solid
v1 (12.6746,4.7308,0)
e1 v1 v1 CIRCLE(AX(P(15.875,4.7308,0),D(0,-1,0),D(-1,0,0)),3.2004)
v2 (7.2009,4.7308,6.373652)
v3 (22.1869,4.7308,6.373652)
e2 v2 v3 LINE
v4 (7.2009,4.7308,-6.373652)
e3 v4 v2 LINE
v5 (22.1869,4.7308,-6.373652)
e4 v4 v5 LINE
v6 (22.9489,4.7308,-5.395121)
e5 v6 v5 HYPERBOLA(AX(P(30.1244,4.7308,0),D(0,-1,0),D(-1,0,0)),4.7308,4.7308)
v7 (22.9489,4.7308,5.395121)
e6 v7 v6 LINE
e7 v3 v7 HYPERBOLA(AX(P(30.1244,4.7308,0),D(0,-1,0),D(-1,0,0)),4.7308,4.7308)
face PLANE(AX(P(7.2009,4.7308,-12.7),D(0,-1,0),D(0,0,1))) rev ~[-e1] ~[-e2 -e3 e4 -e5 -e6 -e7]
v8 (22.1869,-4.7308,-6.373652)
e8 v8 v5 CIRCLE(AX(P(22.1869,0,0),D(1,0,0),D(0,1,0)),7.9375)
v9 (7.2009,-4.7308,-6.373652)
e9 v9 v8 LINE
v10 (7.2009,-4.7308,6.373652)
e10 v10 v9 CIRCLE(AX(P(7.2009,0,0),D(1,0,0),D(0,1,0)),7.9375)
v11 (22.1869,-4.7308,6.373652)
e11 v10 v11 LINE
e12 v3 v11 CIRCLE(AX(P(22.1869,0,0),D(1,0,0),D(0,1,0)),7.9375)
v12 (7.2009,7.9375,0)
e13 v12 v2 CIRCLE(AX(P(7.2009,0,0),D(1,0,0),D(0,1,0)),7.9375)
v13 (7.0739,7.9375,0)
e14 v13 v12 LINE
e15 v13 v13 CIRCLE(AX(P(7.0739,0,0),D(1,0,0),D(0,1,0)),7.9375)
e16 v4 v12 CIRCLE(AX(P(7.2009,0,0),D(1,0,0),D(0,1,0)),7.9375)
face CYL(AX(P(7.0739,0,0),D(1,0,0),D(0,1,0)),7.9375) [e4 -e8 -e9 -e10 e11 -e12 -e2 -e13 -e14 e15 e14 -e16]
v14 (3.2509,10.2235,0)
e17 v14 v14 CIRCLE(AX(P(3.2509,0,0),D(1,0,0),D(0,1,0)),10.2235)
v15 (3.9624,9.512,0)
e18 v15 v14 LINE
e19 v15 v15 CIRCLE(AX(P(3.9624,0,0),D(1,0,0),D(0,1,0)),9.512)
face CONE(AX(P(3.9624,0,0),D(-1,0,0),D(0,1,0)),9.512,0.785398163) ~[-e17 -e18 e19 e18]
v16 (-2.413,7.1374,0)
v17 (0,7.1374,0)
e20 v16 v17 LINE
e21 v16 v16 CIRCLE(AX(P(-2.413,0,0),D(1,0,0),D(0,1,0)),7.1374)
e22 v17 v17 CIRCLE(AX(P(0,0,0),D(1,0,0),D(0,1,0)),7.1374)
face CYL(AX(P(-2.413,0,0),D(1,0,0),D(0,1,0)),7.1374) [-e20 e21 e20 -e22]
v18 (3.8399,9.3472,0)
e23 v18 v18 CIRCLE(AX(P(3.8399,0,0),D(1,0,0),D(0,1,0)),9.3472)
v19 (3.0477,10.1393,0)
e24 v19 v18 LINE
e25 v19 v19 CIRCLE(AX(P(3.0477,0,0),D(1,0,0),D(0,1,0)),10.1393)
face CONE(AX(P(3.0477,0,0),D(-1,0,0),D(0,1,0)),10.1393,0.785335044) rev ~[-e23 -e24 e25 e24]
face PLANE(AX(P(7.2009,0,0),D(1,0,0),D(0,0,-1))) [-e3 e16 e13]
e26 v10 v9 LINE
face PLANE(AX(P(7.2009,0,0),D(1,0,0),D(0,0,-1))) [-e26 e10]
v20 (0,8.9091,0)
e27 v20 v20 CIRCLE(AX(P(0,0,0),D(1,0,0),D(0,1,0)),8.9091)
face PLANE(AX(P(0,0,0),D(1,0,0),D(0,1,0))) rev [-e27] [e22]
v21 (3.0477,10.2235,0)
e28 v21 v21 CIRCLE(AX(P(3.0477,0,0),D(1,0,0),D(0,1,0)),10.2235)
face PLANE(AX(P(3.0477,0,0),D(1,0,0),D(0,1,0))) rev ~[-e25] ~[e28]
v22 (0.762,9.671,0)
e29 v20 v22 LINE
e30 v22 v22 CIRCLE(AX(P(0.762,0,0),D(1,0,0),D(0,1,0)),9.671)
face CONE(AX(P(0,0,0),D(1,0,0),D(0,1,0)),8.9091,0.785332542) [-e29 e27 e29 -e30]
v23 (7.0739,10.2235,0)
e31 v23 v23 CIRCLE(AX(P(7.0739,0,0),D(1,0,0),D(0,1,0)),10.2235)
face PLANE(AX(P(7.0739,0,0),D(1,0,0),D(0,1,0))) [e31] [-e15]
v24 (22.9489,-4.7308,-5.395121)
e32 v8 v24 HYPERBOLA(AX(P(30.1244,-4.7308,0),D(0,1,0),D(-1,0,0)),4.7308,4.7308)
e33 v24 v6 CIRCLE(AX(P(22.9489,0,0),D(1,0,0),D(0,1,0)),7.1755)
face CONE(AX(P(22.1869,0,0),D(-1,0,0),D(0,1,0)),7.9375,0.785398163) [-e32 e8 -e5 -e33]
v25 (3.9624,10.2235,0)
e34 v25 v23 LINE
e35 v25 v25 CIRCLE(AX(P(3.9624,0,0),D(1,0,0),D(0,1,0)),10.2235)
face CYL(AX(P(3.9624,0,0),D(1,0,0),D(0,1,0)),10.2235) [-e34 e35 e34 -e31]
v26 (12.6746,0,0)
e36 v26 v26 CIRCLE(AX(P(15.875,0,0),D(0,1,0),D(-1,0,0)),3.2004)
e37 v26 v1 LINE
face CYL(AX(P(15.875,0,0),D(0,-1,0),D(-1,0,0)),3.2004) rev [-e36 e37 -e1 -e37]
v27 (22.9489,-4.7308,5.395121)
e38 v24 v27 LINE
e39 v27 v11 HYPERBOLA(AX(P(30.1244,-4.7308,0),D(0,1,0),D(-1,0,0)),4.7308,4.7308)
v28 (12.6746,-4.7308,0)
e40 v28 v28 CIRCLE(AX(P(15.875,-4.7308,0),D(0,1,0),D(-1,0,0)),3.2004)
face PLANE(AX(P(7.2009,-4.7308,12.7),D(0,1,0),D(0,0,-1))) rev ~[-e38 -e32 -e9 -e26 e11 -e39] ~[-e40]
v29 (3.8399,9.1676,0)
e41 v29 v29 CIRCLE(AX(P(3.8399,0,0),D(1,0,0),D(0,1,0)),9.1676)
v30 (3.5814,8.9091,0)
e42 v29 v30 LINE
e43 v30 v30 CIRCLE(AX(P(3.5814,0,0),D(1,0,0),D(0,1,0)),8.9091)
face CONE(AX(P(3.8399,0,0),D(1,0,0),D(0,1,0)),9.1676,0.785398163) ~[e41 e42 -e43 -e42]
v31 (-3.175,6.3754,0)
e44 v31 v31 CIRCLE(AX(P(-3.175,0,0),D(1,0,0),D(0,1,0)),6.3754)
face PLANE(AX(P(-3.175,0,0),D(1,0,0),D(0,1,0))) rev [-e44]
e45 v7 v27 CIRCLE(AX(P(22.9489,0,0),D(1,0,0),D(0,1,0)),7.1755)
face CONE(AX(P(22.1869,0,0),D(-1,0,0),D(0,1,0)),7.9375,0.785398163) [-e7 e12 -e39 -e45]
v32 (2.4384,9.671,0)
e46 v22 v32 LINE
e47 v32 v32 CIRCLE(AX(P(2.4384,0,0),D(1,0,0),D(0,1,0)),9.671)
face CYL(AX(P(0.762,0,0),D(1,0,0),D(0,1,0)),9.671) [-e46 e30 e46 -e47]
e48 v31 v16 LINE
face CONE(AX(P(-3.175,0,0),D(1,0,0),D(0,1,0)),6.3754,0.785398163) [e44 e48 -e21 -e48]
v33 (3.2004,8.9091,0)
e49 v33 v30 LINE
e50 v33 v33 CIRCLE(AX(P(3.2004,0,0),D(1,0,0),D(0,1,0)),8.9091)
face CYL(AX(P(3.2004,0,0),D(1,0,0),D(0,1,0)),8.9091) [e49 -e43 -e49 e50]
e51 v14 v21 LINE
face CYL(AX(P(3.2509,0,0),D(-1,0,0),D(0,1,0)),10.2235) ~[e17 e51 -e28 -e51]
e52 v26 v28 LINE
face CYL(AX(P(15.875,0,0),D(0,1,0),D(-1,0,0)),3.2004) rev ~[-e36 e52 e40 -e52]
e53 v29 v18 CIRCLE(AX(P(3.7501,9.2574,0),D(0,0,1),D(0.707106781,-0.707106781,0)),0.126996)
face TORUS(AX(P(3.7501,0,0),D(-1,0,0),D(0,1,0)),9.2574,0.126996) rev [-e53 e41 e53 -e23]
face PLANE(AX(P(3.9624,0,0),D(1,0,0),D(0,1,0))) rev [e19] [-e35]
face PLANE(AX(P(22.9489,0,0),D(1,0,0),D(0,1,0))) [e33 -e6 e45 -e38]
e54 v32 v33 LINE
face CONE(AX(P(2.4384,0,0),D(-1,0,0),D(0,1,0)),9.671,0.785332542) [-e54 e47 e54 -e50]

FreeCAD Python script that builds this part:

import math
import FreeCAD as App
import Part
import Sketcher

V = App.Vector
Q = App.Units.Quantity

doc = App.newDocument("Part")
body = doc.addObject("PartDesign::Body", "Body")

# Sketch on XY plane
sketch1 = doc.addObject("Sketcher::SketchObject", "Sketch")
body.addObject(sketch1)
sketch1.AttachmentSupport = (doc.XY_Plane, [""])
sketch1.MapMode = "FlatFace"
sketch1.addGeometry([
    Part.LineSegment(V(0, 0, 0), V(7.1, 0, 0)),  # 0
    Part.LineSegment(V(7.1, 0, 0), V(7.1, 10.2, 0)),  # 1
    Part.LineSegment(V(7.1, 10.2, 0), V(4, 10.2, 0)),  # 2
    Part.LineSegment(V(4, 10.2, 0), V(4, 8.9, 0)),  # 3
    Part.LineSegment(V(4, 8.9, 0), V(3.2, 8.9, 0)),  # 4
    Part.LineSegment(V(3.2, 8.9, 0), V(2.4, 9.7, 0)),  # 5
    Part.LineSegment(V(2.4, 9.7, 0), V(0.8, 9.7, 0)),  # 6
    Part.LineSegment(V(0.8, 9.7, 0), V(0, 8.9, 0)),  # 7
    Part.LineSegment(V(0, 8.9, 0), V(0, 0, 0)),  # 8
], False)
sketch1.addConstraint([
    Sketcher.Constraint("Coincident", 0, 2, 1, 1),
    Sketcher.Constraint("Coincident", 1, 2, 2, 1),
    Sketcher.Constraint("Coincident", 2, 2, 3, 1),
    Sketcher.Constraint("Coincident", 3, 2, 4, 1),
    Sketcher.Constraint("Coincident", 4, 2, 5, 1),
    Sketcher.Constraint("Coincident", 5, 2, 6, 1),
    Sketcher.Constraint("Coincident", 6, 2, 7, 1),
    Sketcher.Constraint("Coincident", 7, 2, 8, 1),
    Sketcher.Constraint("Coincident", 8, 2, 0, 1),
    Sketcher.Constraint("Horizontal", 0),
    Sketcher.Constraint("Vertical", 1),
    Sketcher.Constraint("Horizontal", 2),
    Sketcher.Constraint("Vertical", 3),
    Sketcher.Constraint("Horizontal", 4),
    Sketcher.Constraint("Horizontal", 6),
    Sketcher.Constraint("Vertical", 8),
    Sketcher.Constraint("Coincident", 8, 2, -1, 1),
    Sketcher.Constraint("Perpendicular", 5, 7),
    Sketcher.Constraint("Horizontal", 4, 2, 7, 2),
    Sketcher.Constraint("Equal", 5, 7),
    Sketcher.Constraint("DistanceX", 4, 2, 4, 1, Q("0.03 in")),
    Sketcher.Constraint("DistanceX", 6, 2, 6, 1, Q("0.066 in")),
    Sketcher.Constraint("DistanceX", -1, 1, 6, 2, Q("0.03 in")),
    Sketcher.Constraint("DistanceX", 0, 1, 0, 2, Q("0.2785 in")),
    Sketcher.Constraint("DistanceY", 1, 1, 1, 2, Q("0.4025 in")),
    Sketcher.Constraint("DistanceY", 3, 2, 3, 1, Q("1.3144 mm")),
])
revolution = doc.addObject("PartDesign::Revolution", "Revolution")
body.addObject(revolution)
revolution.Profile = sketch1
revolution.ReferenceAxis = (sketch1, ["H_Axis"])
revolution.Angle = 360

# Sketch on XY plane
sketch2 = doc.addObject("Sketcher::SketchObject", "Sketch001")
body.addObject(sketch2)
sketch2.AttachmentSupport = (doc.XY_Plane, [""])
sketch2.MapMode = "FlatFace"
sketch2.addGeometry([
    Part.LineSegment(V(3.25, 10.22, 0), V(3.05, 10.22, 0)),  # 0
    Part.LineSegment(V(3.05, 10.22, 0), V(3.05, 10.14, 0)),  # 1
    Part.LineSegment(V(3.05, 10.14, 0), V(3.84, 9.35, 0)),  # 2
    Part.ArcOfCircle(Part.Circle(V(3.75, 9.26, 0), V(0, 0, 1), 0.13), math.radians(-45), math.radians(45)),  # 3
    Part.LineSegment(V(3.84, 9.17, 0), V(3.58, 8.91, 0)),  # 4
    Part.LineSegment(V(3.58, 8.91, 0), V(3.2, 8.91, 0)),  # 5
    Part.LineSegment(V(3.2, 8.91, 0), V(3.2, 8.65, 0)),  # 6
    Part.LineSegment(V(3.2, 8.65, 0), V(3.96, 8.65, 0)),  # 7
    Part.LineSegment(V(3.96, 8.65, 0), V(3.96, 9.51, 0)),  # 8
    Part.LineSegment(V(3.96, 9.51, 0), V(3.25, 10.22, 0)),  # 9
], False)
sketch2.addConstraint([
    Sketcher.Constraint("Coincident", 0, 2, 1, 1),
    Sketcher.Constraint("Coincident", 1, 2, 2, 1),
    Sketcher.Constraint("Tangent", 2, 2, 3, 2),
    Sketcher.Constraint("Tangent", 3, 1, 4, 1),
    Sketcher.Constraint("Coincident", 4, 2, 5, 1),
    Sketcher.Constraint("Coincident", 5, 2, 6, 1),
    Sketcher.Constraint("Coincident", 6, 2, 7, 1),
    Sketcher.Constraint("Coincident", 7, 2, 8, 1),
    Sketcher.Constraint("Coincident", 8, 2, 9, 1),
    Sketcher.Constraint("Coincident", 9, 2, 0, 1),
    Sketcher.Constraint("Horizontal", 0),
    Sketcher.Constraint("Vertical", 1),
    Sketcher.Constraint("Horizontal", 5),
    Sketcher.Constraint("Vertical", 6),
    Sketcher.Constraint("Horizontal", 7),
    Sketcher.Constraint("Vertical", 8),
    Sketcher.Constraint("Perpendicular", 2, 4),
    Sketcher.Constraint("Perpendicular", 4, 9),
    Sketcher.Constraint("Vertical", 2, 2, 3, 1),
    Sketcher.Constraint("Radius", 3, Q("0.005 in")),
    Sketcher.Constraint("DistanceX", 7, 1, 7, 2, Q("0.03 in")),
    Sketcher.Constraint("DistanceY", 6, 2, 6, 1, Q("0.01 in")),
    Sketcher.Constraint("DistanceX", 0, 2, 0, 1, Q("0.008 in")),
    Sketcher.Constraint("DistanceX", 5, 2, 5, 1, Q("0.015 in")),
    Sketcher.Constraint("DistanceX", -1, 1, 0, 2, Q("0.12 in")),
    Sketcher.Constraint("DistanceY", -1, 1, 2, 2, Q("0.368 in")),
    Sketcher.Constraint("DistanceX", -1, 1, 4, 2, Q("0.141 in")),
    Sketcher.Constraint("Distance", 2, Q("0.0441 in")),
    Sketcher.Constraint("DistanceY", 1, 2, 1, 1, Q("0.0842 mm")),
])
revolution2 = doc.addObject("PartDesign::Revolution", "Revolution001")
body.addObject(revolution2)
revolution2.Profile = sketch2
revolution2.ReferenceAxis = (sketch2, ["H_Axis"])
revolution2.Angle = 360

# Sketch on XY plane
sketch3 = doc.addObject("Sketcher::SketchObject", "Sketch002")
body.addObject(sketch3)
sketch3.AttachmentSupport = (doc.XY_Plane, [""])
sketch3.MapMode = "FlatFace"
sketch3.addGeometry([
    Part.LineSegment(V(-3.2, 0, 0), V(0, 0, 0)),  # 0
    Part.LineSegment(V(0, 0, 0), V(0, 7.1, 0)),  # 1
    Part.LineSegment(V(0, 7.1, 0), V(-2.4, 7.1, 0)),  # 2
    Part.LineSegment(V(-2.4, 7.1, 0), V(-3.2, 6.4, 0)),  # 3
    Part.LineSegment(V(-3.2, 6.4, 0), V(-3.2, 0, 0)),  # 4
], False)
sketch3.addConstraint([
    Sketcher.Constraint("Coincident", 0, 2, 1, 1),
    Sketcher.Constraint("Coincident", 1, 2, 2, 1),
    Sketcher.Constraint("Coincident", 2, 2, 3, 1),
    Sketcher.Constraint("Coincident", 3, 2, 4, 1),
    Sketcher.Constraint("Coincident", 4, 2, 0, 1),
    Sketcher.Constraint("Horizontal", 0),
    Sketcher.Constraint("Vertical", 1),
    Sketcher.Constraint("Horizontal", 2),
    Sketcher.Constraint("Vertical", 4),
    Sketcher.Constraint("Coincident", 0, 2, -1, 1),
    Sketcher.Constraint("Angle", 3, Q("-135 deg")),
    Sketcher.Constraint("DistanceX", 0, 1, 0, 2, Q("0.125 in")),
    Sketcher.Constraint("DistanceX", 2, 2, 2, 1, Q("0.095 in")),
    Sketcher.Constraint("DistanceY", 1, 1, 1, 2, Q("0.281 in")),
])
revolution3 = doc.addObject("PartDesign::Revolution", "Revolution002")
body.addObject(revolution3)
revolution3.Profile = sketch3
revolution3.ReferenceAxis = (sketch3, ["H_Axis"])
revolution3.Angle = 360

# Sketch on XY plane
sketch4 = doc.addObject("Sketcher::SketchObject", "Sketch003")
body.addObject(sketch4)
sketch4.AttachmentSupport = (doc.XY_Plane, [""])
sketch4.MapMode = "FlatFace"
sketch4.addGeometry([
    Part.LineSegment(V(7.1, 0, 0), V(22.9, 0, 0)),  # 0
    Part.LineSegment(V(22.9, 0, 0), V(22.9, 7.2, 0)),  # 1
    Part.LineSegment(V(22.9, 7.2, 0), V(22.2, 7.9, 0)),  # 2
    Part.LineSegment(V(22.2, 7.9, 0), V(7.1, 7.9, 0)),  # 3
    Part.LineSegment(V(7.1, 7.9, 0), V(7.1, 0, 0)),  # 4
], False)
sketch4.addConstraint([
    Sketcher.Constraint("Coincident", 0, 2, 1, 1),
    Sketcher.Constraint("Coincident", 1, 2, 2, 1),
    Sketcher.Constraint("Coincident", 2, 2, 3, 1),
    Sketcher.Constraint("Coincident", 3, 2, 4, 1),
    Sketcher.Constraint("Coincident", 4, 2, 0, 1),
    Sketcher.Constraint("Horizontal", 0),
    Sketcher.Constraint("Vertical", 1),
    Sketcher.Constraint("Horizontal", 3),
    Sketcher.Constraint("Vertical", 4),
    Sketcher.Constraint("PointOnObject", 0, 2, -1),
    Sketcher.Constraint("Angle", 2, Q("135 deg")),
    Sketcher.Constraint("DistanceX", 0, 1, 0, 2, Q("0.625 in")),
    Sketcher.Constraint("DistanceX", 3, 2, 3, 1, Q("0.595 in")),
    Sketcher.Constraint("DistanceY", 4, 2, 4, 1, Q("0.3125 in")),
    Sketcher.Constraint("DistanceX", -1, 1, 0, 2, Q("0.9035 in")),
])
revolution4 = doc.addObject("PartDesign::Revolution", "Revolution003")
body.addObject(revolution4)
revolution4.Profile = sketch4
revolution4.ReferenceAxis = (sketch4, ["H_Axis"])
revolution4.Angle = 360

# Sketch on YZ plane
sketch5 = doc.addObject("Sketcher::SketchObject", "Sketch004")
body.addObject(sketch5)
sketch5.AttachmentSupport = (doc.YZ_Plane, [""])
sketch5.MapMode = "FlatFace"
sketch5.AttachmentOffset = App.Placement(V(0, 0, 0.2835 * 25.4), App.Rotation())
sketch5.addGeometry([
    Part.LineSegment(V(16, -16, 0), V(16, 16, 0)),  # 0
    Part.LineSegment(V(16, 16, 0), V(-16, 16, 0)),  # 1
    Part.LineSegment(V(-16, 16, 0), V(-16, -16, 0)),  # 2
    Part.LineSegment(V(-16, -16, 0), V(16, -16, 0)),  # 3
    Part.LineSegment(V(-5, 13, 0), V(5, 13, 0)),  # 4
    Part.LineSegment(V(5, 13, 0), V(5, -13, 0)),  # 5
    Part.LineSegment(V(5, -13, 0), V(-5, -13, 0)),  # 6
    Part.LineSegment(V(-5, -13, 0), V(-5, 13, 0)),  # 7
], False)
sketch5.addConstraint([
    Sketcher.Constraint("Coincident", 0, 2, 1, 1),
    Sketcher.Constraint("Coincident", 1, 2, 2, 1),
    Sketcher.Constraint("Coincident", 2, 2, 3, 1),
    Sketcher.Constraint("Coincident", 3, 2, 0, 1),
    Sketcher.Constraint("Coincident", 4, 2, 5, 1),
    Sketcher.Constraint("Coincident", 5, 2, 6, 1),
    Sketcher.Constraint("Coincident", 6, 2, 7, 1),
    Sketcher.Constraint("Coincident", 7, 2, 4, 1),
    Sketcher.Constraint("Vertical", 0),
    Sketcher.Constraint("Horizontal", 1),
    Sketcher.Constraint("Vertical", 2),
    Sketcher.Constraint("Horizontal", 3),
    Sketcher.Constraint("Horizontal", 4),
    Sketcher.Constraint("Vertical", 5),
    Sketcher.Constraint("Horizontal", 6),
    Sketcher.Constraint("Vertical", 7),
    Sketcher.Constraint("Symmetric", 0, 2, 2, 2, -1, 1),
    Sketcher.Constraint("Symmetric", 4, 2, 6, 2, -1, 1),
    Sketcher.Constraint("Equal", 3, 0),
    Sketcher.Constraint("DistanceY", 5, 2, 5, 1, Q("1 in")),
    Sketcher.Constraint("DistanceX", 1, 2, 1, 1, Q("1.25 in")),
    Sketcher.Constraint("DistanceX", 4, 1, 4, 2, Q("0.3725 in")),
])
pocket1 = doc.addObject("PartDesign::Pocket", "Pocket")
body.addObject(pocket1)
pocket1.Profile = sketch5
pocket1.Length = Q("0.625 in")
pocket1.Reversed = True

# Sketch on XZ plane
sketch6 = doc.addObject("Sketcher::SketchObject", "Sketch005")
body.addObject(sketch6)
sketch6.AttachmentSupport = (doc.XZ_Plane, [""])
sketch6.MapMode = "FlatFace"
sketch6.addGeometry(Part.Circle(V(15.9, 0, 0), V(0, 0, 1), 3.2), False)
sketch6.addConstraint([
    Sketcher.Constraint("PointOnObject", 0, 3, -1),
    Sketcher.Constraint("Diameter", 0, Q("0.252 in")),
    Sketcher.Constraint("DistanceX", -1, 1, 0, 3, Q("0.625 in")),
])
pocket2 = doc.addObject("PartDesign::Pocket", "Pocket001")
body.addObject(pocket2)
pocket2.Profile = sketch6
pocket2.Length = Q("0.745 in")
pocket2.Midplane = True

doc.recompute()
